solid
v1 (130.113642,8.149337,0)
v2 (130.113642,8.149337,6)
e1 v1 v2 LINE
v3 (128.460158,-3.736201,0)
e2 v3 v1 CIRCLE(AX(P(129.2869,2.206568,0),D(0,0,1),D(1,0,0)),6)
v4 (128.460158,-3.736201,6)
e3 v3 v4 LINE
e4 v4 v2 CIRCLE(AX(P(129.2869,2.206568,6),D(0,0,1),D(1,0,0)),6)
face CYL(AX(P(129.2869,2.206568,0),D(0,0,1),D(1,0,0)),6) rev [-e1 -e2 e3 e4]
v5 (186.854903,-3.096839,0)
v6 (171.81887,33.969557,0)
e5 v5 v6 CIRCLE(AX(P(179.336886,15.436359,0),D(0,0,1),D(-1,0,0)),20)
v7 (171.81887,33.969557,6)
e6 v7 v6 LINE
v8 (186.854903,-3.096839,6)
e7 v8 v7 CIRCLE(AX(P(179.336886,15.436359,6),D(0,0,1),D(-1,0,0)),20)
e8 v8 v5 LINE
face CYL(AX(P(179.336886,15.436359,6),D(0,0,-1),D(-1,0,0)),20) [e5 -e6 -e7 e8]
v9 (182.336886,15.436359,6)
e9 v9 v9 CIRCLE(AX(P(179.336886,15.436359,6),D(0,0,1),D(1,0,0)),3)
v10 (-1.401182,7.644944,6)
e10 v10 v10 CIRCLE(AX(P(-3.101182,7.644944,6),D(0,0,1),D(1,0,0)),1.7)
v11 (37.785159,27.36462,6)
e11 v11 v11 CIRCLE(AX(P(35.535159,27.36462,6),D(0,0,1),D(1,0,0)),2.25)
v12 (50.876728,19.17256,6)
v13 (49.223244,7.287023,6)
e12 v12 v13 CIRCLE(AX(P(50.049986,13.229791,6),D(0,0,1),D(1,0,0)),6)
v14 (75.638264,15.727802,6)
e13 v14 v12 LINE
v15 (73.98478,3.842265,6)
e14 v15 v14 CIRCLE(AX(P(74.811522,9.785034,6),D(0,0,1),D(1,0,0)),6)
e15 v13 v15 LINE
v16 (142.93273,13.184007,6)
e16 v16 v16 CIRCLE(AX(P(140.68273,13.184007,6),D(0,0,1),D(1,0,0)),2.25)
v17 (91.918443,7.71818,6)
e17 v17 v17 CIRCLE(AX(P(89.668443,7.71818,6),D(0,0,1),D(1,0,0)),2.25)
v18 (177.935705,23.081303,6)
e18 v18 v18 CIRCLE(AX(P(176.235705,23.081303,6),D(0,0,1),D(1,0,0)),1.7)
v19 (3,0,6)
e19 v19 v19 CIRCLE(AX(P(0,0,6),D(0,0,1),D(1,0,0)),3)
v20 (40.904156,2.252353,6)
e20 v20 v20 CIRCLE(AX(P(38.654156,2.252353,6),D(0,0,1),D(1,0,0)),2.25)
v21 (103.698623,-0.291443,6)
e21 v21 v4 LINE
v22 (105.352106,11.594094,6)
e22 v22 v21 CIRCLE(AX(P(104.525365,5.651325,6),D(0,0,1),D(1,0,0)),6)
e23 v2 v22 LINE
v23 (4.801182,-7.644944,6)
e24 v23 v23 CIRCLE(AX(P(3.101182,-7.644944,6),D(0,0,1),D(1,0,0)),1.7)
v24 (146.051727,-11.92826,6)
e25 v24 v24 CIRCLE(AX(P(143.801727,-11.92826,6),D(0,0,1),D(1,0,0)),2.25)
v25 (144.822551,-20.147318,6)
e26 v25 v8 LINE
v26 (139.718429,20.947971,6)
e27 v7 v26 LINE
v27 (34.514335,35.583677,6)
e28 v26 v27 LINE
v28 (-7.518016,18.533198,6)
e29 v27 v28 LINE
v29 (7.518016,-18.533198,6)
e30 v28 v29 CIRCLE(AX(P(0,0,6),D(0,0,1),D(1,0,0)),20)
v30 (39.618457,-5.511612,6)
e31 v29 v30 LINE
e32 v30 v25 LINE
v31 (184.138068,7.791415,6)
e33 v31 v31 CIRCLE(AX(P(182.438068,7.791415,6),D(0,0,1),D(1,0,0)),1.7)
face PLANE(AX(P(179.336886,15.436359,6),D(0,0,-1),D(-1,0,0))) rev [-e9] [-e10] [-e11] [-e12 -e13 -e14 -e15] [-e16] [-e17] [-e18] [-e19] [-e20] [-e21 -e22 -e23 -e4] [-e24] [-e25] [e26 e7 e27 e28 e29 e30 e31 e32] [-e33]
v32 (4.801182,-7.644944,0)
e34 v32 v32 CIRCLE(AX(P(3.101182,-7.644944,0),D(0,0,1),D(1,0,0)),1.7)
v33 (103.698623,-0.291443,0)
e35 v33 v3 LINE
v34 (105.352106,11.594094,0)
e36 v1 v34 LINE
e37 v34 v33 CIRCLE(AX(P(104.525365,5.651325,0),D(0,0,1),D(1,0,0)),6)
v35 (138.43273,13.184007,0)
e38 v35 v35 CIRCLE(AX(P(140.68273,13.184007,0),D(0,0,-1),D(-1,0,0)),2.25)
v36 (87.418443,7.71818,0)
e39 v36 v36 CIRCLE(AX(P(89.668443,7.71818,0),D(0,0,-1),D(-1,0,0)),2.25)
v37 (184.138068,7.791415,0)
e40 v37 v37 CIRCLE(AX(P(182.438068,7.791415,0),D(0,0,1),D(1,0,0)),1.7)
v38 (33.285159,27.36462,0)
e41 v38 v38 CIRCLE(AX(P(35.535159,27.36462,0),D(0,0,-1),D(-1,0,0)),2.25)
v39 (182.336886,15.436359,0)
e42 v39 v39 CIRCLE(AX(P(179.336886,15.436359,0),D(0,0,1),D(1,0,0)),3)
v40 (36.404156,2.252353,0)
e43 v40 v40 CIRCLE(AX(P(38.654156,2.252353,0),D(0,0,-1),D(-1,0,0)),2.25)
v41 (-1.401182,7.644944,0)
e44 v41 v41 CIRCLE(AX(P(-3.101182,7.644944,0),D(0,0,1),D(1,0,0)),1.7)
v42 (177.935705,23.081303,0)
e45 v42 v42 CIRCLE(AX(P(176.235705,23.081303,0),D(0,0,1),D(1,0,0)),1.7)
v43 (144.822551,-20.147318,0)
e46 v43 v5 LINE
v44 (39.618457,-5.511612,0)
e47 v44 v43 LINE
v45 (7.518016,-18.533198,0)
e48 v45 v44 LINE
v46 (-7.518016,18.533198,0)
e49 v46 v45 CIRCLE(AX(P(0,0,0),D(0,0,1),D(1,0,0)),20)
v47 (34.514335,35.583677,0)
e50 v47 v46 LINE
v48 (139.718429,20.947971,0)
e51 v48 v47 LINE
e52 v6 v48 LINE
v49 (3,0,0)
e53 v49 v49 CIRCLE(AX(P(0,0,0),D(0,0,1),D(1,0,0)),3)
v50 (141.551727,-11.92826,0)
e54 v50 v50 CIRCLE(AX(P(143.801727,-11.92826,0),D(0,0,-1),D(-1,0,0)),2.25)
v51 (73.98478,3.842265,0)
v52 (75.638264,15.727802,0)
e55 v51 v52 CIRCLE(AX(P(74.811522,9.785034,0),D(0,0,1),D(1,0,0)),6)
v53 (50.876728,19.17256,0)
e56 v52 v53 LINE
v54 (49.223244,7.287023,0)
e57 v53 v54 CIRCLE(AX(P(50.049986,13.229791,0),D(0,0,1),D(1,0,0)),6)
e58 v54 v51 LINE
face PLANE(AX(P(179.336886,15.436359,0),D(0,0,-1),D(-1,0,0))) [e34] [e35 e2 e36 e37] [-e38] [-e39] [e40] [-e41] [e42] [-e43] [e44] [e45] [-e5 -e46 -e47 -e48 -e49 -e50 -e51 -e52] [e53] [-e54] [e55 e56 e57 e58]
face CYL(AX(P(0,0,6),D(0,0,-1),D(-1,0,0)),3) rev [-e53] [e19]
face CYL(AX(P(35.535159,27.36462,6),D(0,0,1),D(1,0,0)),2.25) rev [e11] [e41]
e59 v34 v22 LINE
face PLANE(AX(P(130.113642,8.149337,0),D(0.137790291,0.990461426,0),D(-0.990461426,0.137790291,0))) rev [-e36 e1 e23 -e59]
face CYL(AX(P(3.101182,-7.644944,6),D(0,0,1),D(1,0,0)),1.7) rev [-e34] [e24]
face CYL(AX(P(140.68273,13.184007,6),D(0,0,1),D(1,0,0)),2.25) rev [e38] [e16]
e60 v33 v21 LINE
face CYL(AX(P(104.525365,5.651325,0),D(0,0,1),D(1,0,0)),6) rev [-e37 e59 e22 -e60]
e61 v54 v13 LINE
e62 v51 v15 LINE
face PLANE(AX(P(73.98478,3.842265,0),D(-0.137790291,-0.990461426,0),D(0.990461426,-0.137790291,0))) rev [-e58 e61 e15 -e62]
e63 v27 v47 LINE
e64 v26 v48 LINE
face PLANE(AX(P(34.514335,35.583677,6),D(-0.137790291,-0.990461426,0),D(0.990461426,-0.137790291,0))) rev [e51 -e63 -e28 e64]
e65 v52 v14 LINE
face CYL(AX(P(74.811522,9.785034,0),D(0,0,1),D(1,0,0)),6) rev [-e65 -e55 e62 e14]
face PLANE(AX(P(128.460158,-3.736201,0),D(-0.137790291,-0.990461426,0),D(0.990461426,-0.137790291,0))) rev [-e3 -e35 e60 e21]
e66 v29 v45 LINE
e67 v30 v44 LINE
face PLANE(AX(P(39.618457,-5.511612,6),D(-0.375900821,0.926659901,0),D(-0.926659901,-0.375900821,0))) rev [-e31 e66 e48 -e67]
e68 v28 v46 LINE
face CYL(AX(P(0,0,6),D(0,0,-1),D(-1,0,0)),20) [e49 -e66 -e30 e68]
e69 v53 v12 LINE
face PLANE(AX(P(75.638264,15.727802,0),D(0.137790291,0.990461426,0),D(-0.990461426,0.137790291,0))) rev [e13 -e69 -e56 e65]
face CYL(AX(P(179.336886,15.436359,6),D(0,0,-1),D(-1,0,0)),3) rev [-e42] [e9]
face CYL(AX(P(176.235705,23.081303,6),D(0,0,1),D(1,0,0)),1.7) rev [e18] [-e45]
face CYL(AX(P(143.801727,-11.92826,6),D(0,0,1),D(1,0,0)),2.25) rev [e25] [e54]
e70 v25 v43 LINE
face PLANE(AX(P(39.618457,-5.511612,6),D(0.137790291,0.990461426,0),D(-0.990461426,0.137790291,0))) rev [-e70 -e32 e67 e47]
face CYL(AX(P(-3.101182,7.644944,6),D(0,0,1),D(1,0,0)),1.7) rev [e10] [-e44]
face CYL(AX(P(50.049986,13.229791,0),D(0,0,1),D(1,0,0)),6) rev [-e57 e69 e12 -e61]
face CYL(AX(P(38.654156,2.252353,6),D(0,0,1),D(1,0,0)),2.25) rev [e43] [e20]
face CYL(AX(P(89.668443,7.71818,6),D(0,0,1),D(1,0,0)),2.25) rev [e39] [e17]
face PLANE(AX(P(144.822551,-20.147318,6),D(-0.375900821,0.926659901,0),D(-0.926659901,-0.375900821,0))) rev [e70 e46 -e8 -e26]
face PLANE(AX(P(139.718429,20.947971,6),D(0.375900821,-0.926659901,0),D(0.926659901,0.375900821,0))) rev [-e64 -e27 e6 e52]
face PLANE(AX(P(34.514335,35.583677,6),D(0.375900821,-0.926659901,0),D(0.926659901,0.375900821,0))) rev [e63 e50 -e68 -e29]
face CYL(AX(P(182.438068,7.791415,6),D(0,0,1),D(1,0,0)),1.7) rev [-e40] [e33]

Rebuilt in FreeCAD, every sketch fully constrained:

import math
import FreeCAD as App
import Part
import Sketcher
from FreeCAD import Vector
Q = App.Units.Quantity

doc = App.newDocument("Part")
body = doc.addObject("PartDesign::Body", "Body")

# Sketch on XY plane
sketch1 = doc.addObject("Sketcher::SketchObject", "Sketch")
body.addObject(sketch1)
sketch1.AttachmentSupport = (doc.XY_Plane, [""])
sketch1.MapMode = "FlatFace"
sketch1.addGeometry([
    Part.LineSegment(Vector(171.81887, 33.969557, 0), Vector(139.718429, 20.947971, 0)),  # 0
    Part.LineSegment(Vector(139.718429, 20.947971, 0), Vector(34.514335, 35.583677, 0)),  # 1
    Part.LineSegment(Vector(34.514335, 35.583677, 0), Vector(-7.518016, 18.533198, 0)),  # 2
    Part.ArcOfCircle(Part.Circle(Vector(0, 0, 0), Vector(0, 0, 1), 20), math.radians(112.08), math.radians(292.08)),  # 3
    Part.LineSegment(Vector(7.518016, -18.533198, 0), Vector(39.618457, -5.511612, 0)),  # 4
    Part.LineSegment(Vector(39.618457, -5.511612, 0), Vector(144.822551, -20.147318, 0)),  # 5
    Part.LineSegment(Vector(144.822551, -20.147318, 0), Vector(186.854903, -3.096839, 0)),  # 6
    Part.ArcOfCircle(Part.Circle(Vector(179.336886, 15.436359, 0), Vector(0, 0, 1), 20), math.radians(-67.92), math.radians(112.08)),  # 7
    Part.Circle(Vector(0, 0, 0), Vector(0, 0, 1), 3),  # 8
    Part.Circle(Vector(179.336886, 15.436359, 0), Vector(0, 0, 1), 3),  # 9
], False)
sketch1.addConstraint([
    Sketcher.Constraint("Coincident", 0, 2, 1, 1),
    Sketcher.Constraint("Coincident", 1, 2, 2, 1),
    Sketcher.Constraint("Tangent", 2, 2, 3, 1),
    Sketcher.Constraint("Tangent", 3, 2, 4, 1),
    Sketcher.Constraint("Coincident", 4, 2, 5, 1),
    Sketcher.Constraint("Coincident", 5, 2, 6, 1),
    Sketcher.Constraint("Tangent", 6, 2, 7, 1),
    Sketcher.Constraint("Tangent", 7, 2, 0, 1),
    Sketcher.Constraint("Coincident", 3, 3, -1, 1),
    Sketcher.Constraint("Coincident", 8, 3, -1, 1),
    Sketcher.Constraint("Coincident", 9, 3, 7, 3),
    Sketcher.Constraint("Equal", 3, 7),
    Sketcher.Constraint("Equal", 8, 9),
    Sketcher.Constraint("Parallel", 0, 2),
    Sketcher.Constraint("Parallel", 2, 4),
    Sketcher.Constraint("Parallel", 1, 5),
    Sketcher.Constraint("Parallel", 4, 6),
    Sketcher.Constraint("Equal", 0, 4),
    Sketcher.Constraint("Diameter", 8, 6.0),
    Sketcher.Constraint("Radius", 3, 20.0),
    Sketcher.Constraint("Angle", 0, Q("-157.92 deg")),
    Sketcher.Constraint("Angle", 1, Q("172.08 deg")),
    Sketcher.Constraint("DistanceY", -1, 1, 7, 3, 15.436359),
    Sketcher.Constraint("DistanceX", -1, 1, 0, 2, 139.718429),
    Sketcher.Constraint("DistanceY", -1, 1, 0, 2, 20.947971),
])
pad1 = doc.addObject("PartDesign::Pad", "Pad")
body.addObject(pad1)
pad1.Profile = sketch1
pad1.Length = 6

# Sketch on XY plane
sketch2 = doc.addObject("Sketcher::SketchObject", "Sketch001")
body.addObject(sketch2)
sketch2.AttachmentSupport = (doc.XY_Plane, [""])
sketch2.MapMode = "FlatFace"
sketch2.AttachmentOffset = App.Placement(Vector(0, 0, 6), App.Rotation())
sketch2.addGeometry([
    Part.Circle(Vector(35.535159, 27.36462, 0), Vector(0, 0, 1), 2.25),  # 0
    Part.Circle(Vector(143.801727, -11.92826, 0), Vector(0, 0, 1), 2.25),  # 1
    Part.Circle(Vector(38.654156, 2.252353, 0), Vector(0, 0, 1), 2.25),  # 2
    Part.Circle(Vector(140.68273, 13.184007, 0), Vector(0, 0, 1), 2.25),  # 3
    Part.Circle(Vector(89.668443, 7.71818, 0), Vector(0, 0, 1), 2.25),  # 4
], False)
sketch2.addConstraint([
    Sketcher.Constraint("Equal", 0, 1),
    Sketcher.Constraint("Equal", 1, 2),
    Sketcher.Constraint("Equal", 2, 3),
    Sketcher.Constraint("Equal", 3, 4),
    Sketcher.Constraint("Diameter", 0, 4.5),
    Sketcher.Constraint("DistanceX", -1, 1, 0, 3, 35.535159),
    Sketcher.Constraint("DistanceY", -1, 1, 0, 3, 27.36462),
    Sketcher.Constraint("DistanceY", 1, 3, -1, 1, 11.92826),
    Sketcher.Constraint("DistanceX", -1, 1, 3, 3, 140.68273),
    Sketcher.Constraint("DistanceY", -1, 1, 4, 3, 7.71818),
    Sketcher.Constraint("DistanceX", 2, 3, 1, 3, 105.147571),
    Sketcher.Constraint("DistanceX", -1, 1, 1, 3, 143.801727),
    Sketcher.Constraint("DistanceY", -1, 1, 2, 3, 2.252353),
    Sketcher.Constraint("DistanceY", -1, 1, 3, 3, 13.184007),
    Sketcher.Constraint("DistanceX", -1, 1, 4, 3, 89.668443),
])
doc.recompute()
hole = doc.addObject("PartDesign::Hole", "Hole")
body.addObject(hole)
hole.Profile = sketch2
hole.ThreadType = "None"
hole.Diameter = 4.5
hole.DepthType = "Dimension"
hole.Depth = 84
hole.DrillPoint = "Angled"
hole.DrillPointAngle = 118

# Sketch on XY plane
sketch3 = doc.addObject("Sketcher::SketchObject", "Sketch002")
body.addObject(sketch3)
sketch3.AttachmentSupport = (doc.XY_Plane, [""])
sketch3.MapMode = "FlatFace"
sketch3.AttachmentOffset = App.Placement(Vector(0, 0, 6), App.Rotation())
sketch3.addGeometry([
    Part.LineSegment(Vector(103.698623, -0.291443, 0), Vector(128.460158, -3.736201, 0)),  # 0
    Part.ArcOfCircle(Part.Circle(Vector(129.2869, 2.206568, 0), Vector(0, 0, 1), 6), math.radians(-97.92), math.radians(82.08)),  # 1
    Part.LineSegment(Vector(130.113642, 8.149337, 0), Vector(105.352106, 11.594094, 0)),  # 2
    Part.ArcOfCircle(Part.Circle(Vector(104.525365, 5.651325, 0), Vector(0, 0, 1), 6), math.radians(82.08), math.radians(262.08)),  # 3
    Part.LineSegment(Vector(49.223244, 7.287023, 0), Vector(73.98478, 3.842265, 0)),  # 4
    Part.ArcOfCircle(Part.Circle(Vector(74.811522, 9.785034, 0), Vector(0, 0, 1), 6), math.radians(-97.92), math.radians(82.08)),  # 5
    Part.LineSegment(Vector(75.638264, 15.727802, 0), Vector(50.876728, 19.17256, 0)),  # 6
    Part.ArcOfCircle(Part.Circle(Vector(50.049986, 13.229791, 0), Vector(0, 0, 1), 6), math.radians(82.08), math.radians(262.08)),  # 7
], False)
sketch3.addConstraint([
    Sketcher.Constraint("Tangent", 0, 2, 1, 1),
    Sketcher.Constraint("Tangent", 1, 2, 2, 1),
    Sketcher.Constraint("Tangent", 2, 2, 3, 1),
    Sketcher.Constraint("Tangent", 3, 2, 0, 1),
    Sketcher.Constraint("Tangent", 4, 2, 5, 1),
    Sketcher.Constraint("Tangent", 5, 2, 6, 1),
    Sketcher.Constraint("Tangent", 6, 2, 7, 1),
    Sketcher.Constraint("Tangent", 7, 2, 4, 1),
    Sketcher.Constraint("Equal", 1, 3),
    Sketcher.Constraint("Equal", 3, 5),
    Sketcher.Constraint("Equal", 5, 7),
    Sketcher.Constraint("Parallel", 2, 4),
    Sketcher.Constraint("Equal", 2, 4),
    Sketcher.Constraint("Radius", 1, 6.0),
    Sketcher.Constraint("Distance", 0, 25.0),
    Sketcher.Constraint("Angle", 0, Q("-7.92 deg")),
    Sketcher.Constraint("DistanceX", -1, 1, 1, 3, 129.2869),
    Sketcher.Constraint("DistanceY", 0, 2, -1, 1, 3.736201),
    Sketcher.Constraint("DistanceX", 5, 2, 3, 3, 28.887101),
    Sketcher.Constraint("DistanceY", -1, 1, 7, 3, 13.229791),
])
pocket1 = doc.addObject("PartDesign::Pocket", "Pocket")
body.addObject(pocket1)
pocket1.Profile = sketch3
pocket1.Type = "ThroughAll"

# Sketch on XY plane
sketch4 = doc.addObject("Sketcher::SketchObject", "Sketch003")
body.addObject(sketch4)
sketch4.AttachmentSupport = (doc.XY_Plane, [""])
sketch4.MapMode = "FlatFace"
sketch4.AttachmentOffset = App.Placement(Vector(0, 0, 6), App.Rotation())
sketch4.addGeometry([
    Part.Circle(Vector(182.438068, 7.791415, 0), Vector(0, 0, 1), 1.7),
    Part.Circle(Vector(176.235705, 23.081303, 0), Vector(0, 0, 1), 1.7),
    Part.Circle(Vector(-3.101182, 7.644944, 0), Vector(0, 0, 1), 1.7),
    Part.Circle(Vector(3.101182, -7.644944, 0), Vector(0, 0, 1), 1.7),
], False)
sketch4.addConstraint([
    Sketcher.Constraint("Equal", 0, 1),
    Sketcher.Constraint("Equal", 1, 2),
    Sketcher.Constraint("Equal", 2, 3),
    Sketcher.Constraint("Symmetric", 2, 3, 3, 3, -1, 1),
    Sketcher.Constraint("Diameter", 0, 3.4),
    Sketcher.Constraint("DistanceX", -1, 1, 0, 3, 182.438068),
    Sketcher.Constraint("DistanceX", 2, 3, -1, 1, 3.101182),
    Sketcher.Constraint("DistanceY", 0, 3, 1, 3, 15.289888),
    Sketcher.Constraint("DistanceY", 2, 3, 1, 3, 15.436359),
    Sketcher.Constraint("DistanceY", 3, 3, 2, 3, 15.289888),
    Sketcher.Constraint("DistanceX", -1, 1, 1, 3, 176.235705),
])
doc.recompute()
hole2 = doc.addObject("PartDesign::Hole", "Hole001")
body.addObject(hole2)
hole2.Profile = sketch4
hole2.ThreadType = "None"
hole2.Diameter = 3.4
hole2.DepthType = "ThroughAll"

doc.recompute()
